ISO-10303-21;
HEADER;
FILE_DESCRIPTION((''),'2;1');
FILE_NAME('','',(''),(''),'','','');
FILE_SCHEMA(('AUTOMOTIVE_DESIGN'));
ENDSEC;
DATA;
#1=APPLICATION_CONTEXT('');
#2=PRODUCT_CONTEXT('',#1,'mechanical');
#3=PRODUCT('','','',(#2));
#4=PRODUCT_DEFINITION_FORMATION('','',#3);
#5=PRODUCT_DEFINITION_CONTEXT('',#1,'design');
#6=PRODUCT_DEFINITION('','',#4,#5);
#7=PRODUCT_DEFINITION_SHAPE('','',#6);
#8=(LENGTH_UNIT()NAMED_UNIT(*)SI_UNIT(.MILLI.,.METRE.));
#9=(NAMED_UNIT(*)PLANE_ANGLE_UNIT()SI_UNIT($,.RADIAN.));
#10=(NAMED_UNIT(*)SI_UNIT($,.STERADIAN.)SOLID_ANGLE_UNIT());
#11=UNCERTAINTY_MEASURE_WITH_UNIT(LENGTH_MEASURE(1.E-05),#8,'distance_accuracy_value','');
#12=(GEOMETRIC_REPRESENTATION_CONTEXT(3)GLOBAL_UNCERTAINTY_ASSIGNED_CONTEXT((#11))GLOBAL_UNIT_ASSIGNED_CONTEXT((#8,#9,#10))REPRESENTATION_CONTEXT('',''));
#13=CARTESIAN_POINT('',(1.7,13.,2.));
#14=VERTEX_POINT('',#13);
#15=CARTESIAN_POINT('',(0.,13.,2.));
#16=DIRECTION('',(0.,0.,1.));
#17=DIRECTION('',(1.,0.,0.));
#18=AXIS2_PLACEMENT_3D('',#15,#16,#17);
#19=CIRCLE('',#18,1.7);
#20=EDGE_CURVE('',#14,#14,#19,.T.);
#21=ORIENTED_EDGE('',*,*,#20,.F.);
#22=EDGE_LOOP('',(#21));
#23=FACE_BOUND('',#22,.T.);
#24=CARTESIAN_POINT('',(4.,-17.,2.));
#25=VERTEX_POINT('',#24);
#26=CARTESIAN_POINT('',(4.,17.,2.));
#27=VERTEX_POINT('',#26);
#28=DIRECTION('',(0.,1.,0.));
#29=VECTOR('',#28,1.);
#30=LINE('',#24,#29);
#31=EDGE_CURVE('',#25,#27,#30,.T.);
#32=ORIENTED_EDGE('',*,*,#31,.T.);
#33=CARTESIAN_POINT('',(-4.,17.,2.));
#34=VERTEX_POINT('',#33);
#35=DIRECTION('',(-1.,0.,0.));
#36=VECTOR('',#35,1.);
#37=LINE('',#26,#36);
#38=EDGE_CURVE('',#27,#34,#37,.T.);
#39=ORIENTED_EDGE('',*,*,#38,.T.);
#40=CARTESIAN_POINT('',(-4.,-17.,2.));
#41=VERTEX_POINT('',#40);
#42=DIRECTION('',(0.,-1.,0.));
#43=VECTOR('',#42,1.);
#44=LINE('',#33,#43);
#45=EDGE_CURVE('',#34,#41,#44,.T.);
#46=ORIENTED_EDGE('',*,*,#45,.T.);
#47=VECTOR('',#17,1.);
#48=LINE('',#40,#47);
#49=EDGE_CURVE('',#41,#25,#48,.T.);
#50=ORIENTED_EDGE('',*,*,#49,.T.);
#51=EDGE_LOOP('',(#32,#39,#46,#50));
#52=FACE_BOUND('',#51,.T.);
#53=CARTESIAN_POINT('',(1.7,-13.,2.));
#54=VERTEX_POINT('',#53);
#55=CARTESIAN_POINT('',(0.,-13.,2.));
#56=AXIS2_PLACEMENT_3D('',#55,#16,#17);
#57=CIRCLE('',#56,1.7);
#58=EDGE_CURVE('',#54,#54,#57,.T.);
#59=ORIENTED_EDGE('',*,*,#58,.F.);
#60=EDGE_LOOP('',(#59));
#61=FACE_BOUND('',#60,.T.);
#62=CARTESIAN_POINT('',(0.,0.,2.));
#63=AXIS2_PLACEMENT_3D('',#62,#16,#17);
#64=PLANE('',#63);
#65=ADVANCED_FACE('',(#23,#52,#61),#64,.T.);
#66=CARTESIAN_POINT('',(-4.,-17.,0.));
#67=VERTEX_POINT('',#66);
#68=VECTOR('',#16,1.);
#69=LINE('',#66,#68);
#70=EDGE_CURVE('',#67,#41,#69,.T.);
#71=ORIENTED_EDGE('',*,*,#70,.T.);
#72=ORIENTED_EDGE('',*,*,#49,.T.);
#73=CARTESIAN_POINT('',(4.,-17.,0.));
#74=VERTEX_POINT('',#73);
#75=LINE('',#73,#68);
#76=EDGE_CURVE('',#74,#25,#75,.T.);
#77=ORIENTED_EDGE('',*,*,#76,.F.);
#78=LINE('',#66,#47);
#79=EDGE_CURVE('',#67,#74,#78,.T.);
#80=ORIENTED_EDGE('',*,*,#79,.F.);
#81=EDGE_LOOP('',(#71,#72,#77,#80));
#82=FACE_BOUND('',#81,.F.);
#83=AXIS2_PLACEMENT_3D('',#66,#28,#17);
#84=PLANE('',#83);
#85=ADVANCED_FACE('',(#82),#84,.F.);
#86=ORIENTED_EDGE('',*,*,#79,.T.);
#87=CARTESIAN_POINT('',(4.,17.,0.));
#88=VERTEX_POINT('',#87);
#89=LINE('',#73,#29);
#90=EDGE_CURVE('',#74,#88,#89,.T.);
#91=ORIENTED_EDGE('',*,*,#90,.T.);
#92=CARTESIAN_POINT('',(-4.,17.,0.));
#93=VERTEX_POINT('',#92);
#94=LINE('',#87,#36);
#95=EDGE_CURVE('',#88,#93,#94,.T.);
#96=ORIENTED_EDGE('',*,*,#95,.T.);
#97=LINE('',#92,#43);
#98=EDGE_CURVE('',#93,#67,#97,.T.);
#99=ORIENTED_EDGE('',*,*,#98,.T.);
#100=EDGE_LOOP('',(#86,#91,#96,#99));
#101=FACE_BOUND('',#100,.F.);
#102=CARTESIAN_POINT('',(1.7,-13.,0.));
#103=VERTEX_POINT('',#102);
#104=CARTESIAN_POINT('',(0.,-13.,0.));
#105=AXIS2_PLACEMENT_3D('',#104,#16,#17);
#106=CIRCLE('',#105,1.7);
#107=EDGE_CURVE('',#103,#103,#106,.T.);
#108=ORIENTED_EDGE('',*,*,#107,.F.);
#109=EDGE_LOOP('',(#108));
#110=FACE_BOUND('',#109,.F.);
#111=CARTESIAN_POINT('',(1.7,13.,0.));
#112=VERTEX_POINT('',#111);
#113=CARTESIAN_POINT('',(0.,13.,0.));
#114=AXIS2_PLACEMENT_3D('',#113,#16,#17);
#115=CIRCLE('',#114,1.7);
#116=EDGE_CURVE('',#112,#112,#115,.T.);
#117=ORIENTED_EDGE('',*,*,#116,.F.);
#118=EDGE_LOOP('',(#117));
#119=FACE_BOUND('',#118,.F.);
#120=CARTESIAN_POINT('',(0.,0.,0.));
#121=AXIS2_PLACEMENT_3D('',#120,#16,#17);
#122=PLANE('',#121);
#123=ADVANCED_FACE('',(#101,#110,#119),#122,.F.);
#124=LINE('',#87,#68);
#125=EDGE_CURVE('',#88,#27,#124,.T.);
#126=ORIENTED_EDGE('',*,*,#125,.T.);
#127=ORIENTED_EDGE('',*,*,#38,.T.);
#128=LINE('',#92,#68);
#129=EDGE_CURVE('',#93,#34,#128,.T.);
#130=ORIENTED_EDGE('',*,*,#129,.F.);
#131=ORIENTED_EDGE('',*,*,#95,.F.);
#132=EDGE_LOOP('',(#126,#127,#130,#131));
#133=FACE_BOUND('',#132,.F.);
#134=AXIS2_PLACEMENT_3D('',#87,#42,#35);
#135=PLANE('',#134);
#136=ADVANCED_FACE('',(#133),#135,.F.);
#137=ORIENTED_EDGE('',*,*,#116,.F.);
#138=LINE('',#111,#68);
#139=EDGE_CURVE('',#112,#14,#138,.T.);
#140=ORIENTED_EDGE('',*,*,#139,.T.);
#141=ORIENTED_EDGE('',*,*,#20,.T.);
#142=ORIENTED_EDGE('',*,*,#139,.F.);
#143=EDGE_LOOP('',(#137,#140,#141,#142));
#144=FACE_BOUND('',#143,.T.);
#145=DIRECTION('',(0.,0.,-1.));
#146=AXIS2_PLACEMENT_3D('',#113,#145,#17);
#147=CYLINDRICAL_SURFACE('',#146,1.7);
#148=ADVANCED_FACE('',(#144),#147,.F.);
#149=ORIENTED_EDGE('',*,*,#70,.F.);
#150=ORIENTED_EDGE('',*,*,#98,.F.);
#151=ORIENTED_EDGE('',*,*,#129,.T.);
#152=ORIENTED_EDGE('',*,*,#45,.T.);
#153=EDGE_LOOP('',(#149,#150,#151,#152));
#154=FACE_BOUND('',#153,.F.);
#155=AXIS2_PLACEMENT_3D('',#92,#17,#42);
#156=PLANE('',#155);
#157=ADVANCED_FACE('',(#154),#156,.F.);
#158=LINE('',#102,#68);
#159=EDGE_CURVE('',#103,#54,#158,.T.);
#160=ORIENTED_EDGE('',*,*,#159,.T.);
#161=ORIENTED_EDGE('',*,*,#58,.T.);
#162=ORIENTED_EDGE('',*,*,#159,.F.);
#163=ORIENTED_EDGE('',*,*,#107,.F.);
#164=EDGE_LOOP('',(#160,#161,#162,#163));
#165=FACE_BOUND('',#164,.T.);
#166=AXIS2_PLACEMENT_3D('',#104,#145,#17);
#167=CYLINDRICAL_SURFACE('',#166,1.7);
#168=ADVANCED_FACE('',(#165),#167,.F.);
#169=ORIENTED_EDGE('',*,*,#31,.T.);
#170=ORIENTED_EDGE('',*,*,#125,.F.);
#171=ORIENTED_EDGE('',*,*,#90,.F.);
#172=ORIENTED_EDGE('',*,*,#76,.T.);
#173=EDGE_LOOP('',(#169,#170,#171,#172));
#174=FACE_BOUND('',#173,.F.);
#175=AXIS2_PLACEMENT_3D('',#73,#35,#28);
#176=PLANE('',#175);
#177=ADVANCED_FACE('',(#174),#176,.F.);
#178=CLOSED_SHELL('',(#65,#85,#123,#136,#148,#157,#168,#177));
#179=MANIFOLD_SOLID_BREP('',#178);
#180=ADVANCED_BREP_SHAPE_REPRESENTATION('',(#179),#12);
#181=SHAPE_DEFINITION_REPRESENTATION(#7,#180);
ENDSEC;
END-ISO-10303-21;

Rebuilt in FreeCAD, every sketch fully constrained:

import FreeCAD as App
import Part
import Sketcher

V = App.Vector

doc = App.newDocument("Part")
body = doc.addObject("PartDesign::Body", "Body")

# Sketch on XY plane
sketch1 = body.newObject("Sketcher::SketchObject", "Sketch")
sketch1.AttachmentSupport = (doc.getObject("XY_Plane"), [""])
sketch1.MapMode = "FlatFace"
sketch1.addGeometry([
    Part.LineSegment(V(-4, 17, 0), V(-4, -17, 0)),  # 0
    Part.LineSegment(V(-4, -17, 0), V(4, -17, 0)),  # 1
    Part.LineSegment(V(4, -17, 0), V(4, 17, 0)),  # 2
    Part.LineSegment(V(4, 17, 0), V(-4, 17, 0)),  # 3
    Part.Circle(V(0, -13, 0), V(0, 0, 1), 1.7),  # 4
    Part.Circle(V(0, 13, 0), V(0, 0, 1), 1.7),  # 5
], False)
sketch1.addConstraint([
    Sketcher.Constraint("Coincident", 0, 2, 1, 1),
    Sketcher.Constraint("Coincident", 1, 2, 2, 1),
    Sketcher.Constraint("Coincident", 2, 2, 3, 1),
    Sketcher.Constraint("Coincident", 3, 2, 0, 1),
    Sketcher.Constraint("Vertical", 0),
    Sketcher.Constraint("Horizontal", 1),
    Sketcher.Constraint("Vertical", 2),
    Sketcher.Constraint("Horizontal", 3),
    Sketcher.Constraint("Equal", 4, 5),
    Sketcher.Constraint("Symmetric", 4, 3, 5, 3, -1, 1),
    Sketcher.Constraint("Symmetric", 0, 2, 2, 2, -1, 1),
    Sketcher.Constraint("PointOnObject", 4, 3, -2),
    Sketcher.Constraint("Diameter", 4, 3.4),
    Sketcher.Constraint("DistanceX", 1, 1, 1, 2, 8.0),
    Sketcher.Constraint("DistanceY", 0, 2, 0, 1, 34.0),
    Sketcher.Constraint("DistanceY", 4, 3, -1, 1, 13.0),
])
pad1 = body.newObject("PartDesign::Pad", "Pad")
pad1.Profile = sketch1
pad1.Length = 2

doc.recompute()
